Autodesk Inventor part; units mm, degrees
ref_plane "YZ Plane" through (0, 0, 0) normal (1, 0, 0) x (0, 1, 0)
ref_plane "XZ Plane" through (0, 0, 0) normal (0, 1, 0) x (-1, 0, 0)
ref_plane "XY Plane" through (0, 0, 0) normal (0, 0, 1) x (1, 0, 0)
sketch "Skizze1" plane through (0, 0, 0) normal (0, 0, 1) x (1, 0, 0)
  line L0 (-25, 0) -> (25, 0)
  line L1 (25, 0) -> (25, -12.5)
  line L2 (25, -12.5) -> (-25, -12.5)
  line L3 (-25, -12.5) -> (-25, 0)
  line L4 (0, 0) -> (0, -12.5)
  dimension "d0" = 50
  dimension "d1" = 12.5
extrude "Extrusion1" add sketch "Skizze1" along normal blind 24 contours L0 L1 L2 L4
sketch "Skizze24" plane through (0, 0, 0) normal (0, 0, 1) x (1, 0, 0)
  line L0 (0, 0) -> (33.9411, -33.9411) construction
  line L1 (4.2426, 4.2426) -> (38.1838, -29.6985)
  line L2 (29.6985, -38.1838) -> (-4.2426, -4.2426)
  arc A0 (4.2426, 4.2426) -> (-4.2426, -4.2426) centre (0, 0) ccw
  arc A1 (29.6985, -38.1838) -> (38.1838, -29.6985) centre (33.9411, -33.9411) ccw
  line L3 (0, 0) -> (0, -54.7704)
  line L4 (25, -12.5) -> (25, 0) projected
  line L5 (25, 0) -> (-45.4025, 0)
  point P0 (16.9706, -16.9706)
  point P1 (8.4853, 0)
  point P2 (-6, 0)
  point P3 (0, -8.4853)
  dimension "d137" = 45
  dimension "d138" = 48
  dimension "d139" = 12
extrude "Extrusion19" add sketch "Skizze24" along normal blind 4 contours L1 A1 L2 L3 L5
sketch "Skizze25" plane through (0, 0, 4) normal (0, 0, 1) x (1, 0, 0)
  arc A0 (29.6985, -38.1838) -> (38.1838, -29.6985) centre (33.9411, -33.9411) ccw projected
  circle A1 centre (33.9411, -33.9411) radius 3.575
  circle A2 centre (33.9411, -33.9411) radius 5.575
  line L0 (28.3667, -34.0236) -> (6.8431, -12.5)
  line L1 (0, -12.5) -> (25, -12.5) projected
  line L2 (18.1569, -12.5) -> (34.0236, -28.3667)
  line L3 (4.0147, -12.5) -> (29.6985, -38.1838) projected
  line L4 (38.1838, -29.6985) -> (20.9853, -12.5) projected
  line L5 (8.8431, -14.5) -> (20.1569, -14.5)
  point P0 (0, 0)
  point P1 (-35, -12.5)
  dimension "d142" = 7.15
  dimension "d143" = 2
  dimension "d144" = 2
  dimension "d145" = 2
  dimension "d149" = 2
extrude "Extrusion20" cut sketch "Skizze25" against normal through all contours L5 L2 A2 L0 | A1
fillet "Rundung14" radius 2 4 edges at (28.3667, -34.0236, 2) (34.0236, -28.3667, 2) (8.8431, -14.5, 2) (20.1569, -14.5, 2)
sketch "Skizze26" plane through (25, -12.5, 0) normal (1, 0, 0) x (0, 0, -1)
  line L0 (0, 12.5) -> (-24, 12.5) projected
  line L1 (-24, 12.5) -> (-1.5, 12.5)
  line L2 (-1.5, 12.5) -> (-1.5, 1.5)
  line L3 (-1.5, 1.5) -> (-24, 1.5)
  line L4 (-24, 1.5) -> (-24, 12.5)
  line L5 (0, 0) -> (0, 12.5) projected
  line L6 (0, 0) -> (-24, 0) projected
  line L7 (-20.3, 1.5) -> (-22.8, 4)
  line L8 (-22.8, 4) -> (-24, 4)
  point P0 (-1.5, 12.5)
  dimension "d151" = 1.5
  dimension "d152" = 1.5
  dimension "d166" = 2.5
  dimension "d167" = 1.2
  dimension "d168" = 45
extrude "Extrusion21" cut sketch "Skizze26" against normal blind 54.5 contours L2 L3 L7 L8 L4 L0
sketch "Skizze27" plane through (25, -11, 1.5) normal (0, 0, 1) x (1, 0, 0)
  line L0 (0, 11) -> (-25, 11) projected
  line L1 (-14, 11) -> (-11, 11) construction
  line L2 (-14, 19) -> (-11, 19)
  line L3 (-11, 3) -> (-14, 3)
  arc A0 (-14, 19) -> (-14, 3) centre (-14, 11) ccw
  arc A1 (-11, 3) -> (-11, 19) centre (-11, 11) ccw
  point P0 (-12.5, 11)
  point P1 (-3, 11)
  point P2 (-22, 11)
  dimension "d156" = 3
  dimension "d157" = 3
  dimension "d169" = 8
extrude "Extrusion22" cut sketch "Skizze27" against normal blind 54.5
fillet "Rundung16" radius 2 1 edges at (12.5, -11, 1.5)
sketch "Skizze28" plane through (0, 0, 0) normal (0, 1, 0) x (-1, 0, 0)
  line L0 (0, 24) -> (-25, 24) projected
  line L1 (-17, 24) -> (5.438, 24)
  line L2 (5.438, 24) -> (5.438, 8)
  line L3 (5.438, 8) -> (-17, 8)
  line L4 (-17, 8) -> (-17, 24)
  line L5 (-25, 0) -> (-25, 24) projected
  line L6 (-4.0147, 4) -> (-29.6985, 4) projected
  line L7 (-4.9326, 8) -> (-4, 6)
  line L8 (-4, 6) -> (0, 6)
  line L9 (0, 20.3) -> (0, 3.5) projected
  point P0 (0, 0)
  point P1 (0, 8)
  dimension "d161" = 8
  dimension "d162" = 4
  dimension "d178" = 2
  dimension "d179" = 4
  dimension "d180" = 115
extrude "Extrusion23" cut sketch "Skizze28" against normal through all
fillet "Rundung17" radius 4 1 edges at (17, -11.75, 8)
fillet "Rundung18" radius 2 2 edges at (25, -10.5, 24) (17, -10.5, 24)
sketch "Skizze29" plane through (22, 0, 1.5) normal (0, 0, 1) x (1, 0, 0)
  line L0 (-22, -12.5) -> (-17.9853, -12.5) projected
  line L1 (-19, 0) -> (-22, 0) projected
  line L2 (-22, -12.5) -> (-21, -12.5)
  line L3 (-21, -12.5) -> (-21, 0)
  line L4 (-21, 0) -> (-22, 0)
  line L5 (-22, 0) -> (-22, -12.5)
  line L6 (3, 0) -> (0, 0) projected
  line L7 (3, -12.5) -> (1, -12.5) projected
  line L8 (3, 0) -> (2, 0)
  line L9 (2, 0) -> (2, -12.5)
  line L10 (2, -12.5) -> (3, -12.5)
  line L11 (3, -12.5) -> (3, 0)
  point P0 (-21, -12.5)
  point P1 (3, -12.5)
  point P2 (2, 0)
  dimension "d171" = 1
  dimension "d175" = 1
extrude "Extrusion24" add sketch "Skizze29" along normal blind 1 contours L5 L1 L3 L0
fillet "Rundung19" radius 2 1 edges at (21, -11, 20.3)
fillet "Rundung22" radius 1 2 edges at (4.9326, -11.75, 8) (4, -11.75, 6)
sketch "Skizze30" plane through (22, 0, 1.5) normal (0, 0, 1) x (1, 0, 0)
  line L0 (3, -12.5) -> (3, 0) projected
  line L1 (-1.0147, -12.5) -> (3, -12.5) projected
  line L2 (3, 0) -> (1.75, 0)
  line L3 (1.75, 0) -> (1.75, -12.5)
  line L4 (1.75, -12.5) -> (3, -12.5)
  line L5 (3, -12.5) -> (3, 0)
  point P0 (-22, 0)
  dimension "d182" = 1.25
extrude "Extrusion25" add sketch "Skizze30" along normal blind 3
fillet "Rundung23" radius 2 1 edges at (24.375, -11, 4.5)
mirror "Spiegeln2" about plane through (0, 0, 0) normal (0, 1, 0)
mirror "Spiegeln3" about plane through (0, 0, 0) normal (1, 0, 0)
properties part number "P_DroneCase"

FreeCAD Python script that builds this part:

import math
import FreeCAD as App
import Part
import Sketcher
Q = App.Units.Quantity


def edges_at(feature, points):
    """Names of the edges that pass closest to the given points."""
    edges = feature.Shape.Edges
    near = lambda p: min(range(len(edges)), key=lambda i: edges[i].distToShape(Part.Vertex(*p))[0])
    return sorted({f"Edge{near(p) + 1}" for p in points})

doc = App.newDocument("Part")
body = doc.addObject("PartDesign::Body", "Body")

# Sketch on XY plane
sketch1 = body.newObject("Sketcher::SketchObject", "Sketch")
sketch1.AttachmentSupport = (doc.getObject("XY_Plane"), [""])
sketch1.MapMode = "FlatFace"
sketch1.addGeometry(Part.LineSegment(App.Vector(25, 0, 0), App.Vector(0, 0, 0)), False)
sketch1.addGeometry(Part.LineSegment(App.Vector(0, 0, 0), App.Vector(0, -12, 0)), False)
sketch1.addGeometry(Part.LineSegment(App.Vector(0, -12, 0), App.Vector(25, -12, 0)), False)
sketch1.addGeometry(Part.LineSegment(App.Vector(25, -12, 0), App.Vector(25, 0, 0)), False)
sketch1.addConstraint(Sketcher.Constraint("Coincident", 0, 2, 1, 1))
sketch1.addConstraint(Sketcher.Constraint("Coincident", 1, 2, 2, 1))
sketch1.addConstraint(Sketcher.Constraint("Coincident", 2, 2, 3, 1))
sketch1.addConstraint(Sketcher.Constraint("Coincident", 3, 2, 0, 1))
sketch1.addConstraint(Sketcher.Constraint("Horizontal", 0))
sketch1.addConstraint(Sketcher.Constraint("Vertical", 1))
sketch1.addConstraint(Sketcher.Constraint("Horizontal", 2))
sketch1.addConstraint(Sketcher.Constraint("Vertical", 3))
sketch1.addConstraint(Sketcher.Constraint("Coincident", 0, 2, -1, 1))
sketch1.addConstraint(Sketcher.Constraint("DistanceY", 1, 2, 1, 1, Q("12.5 mm")))
sketch1.addConstraint(Sketcher.Constraint("DistanceX", 0, 2, 0, 1, Q("25 mm")))
pad1 = body.newObject("PartDesign::Pad", "Pad")
pad1.Profile = sketch1
pad1.Length = 24

# Sketch on XY plane
sketch2 = body.newObject("Sketcher::SketchObject", "Sketch001")
sketch2.AttachmentSupport = (doc.getObject("XY_Plane"), [""])
sketch2.MapMode = "FlatFace"
sketch2.addGeometry(Part.LineSegment(App.Vector(38, -30, 0), App.Vector(8, 0, 0)), False)
sketch2.addGeometry(Part.LineSegment(App.Vector(8, 0, 0), App.Vector(0, 0, 0)), False)
sketch2.addGeometry(Part.LineSegment(App.Vector(0, 0, 0), App.Vector(0, -8, 0)), False)
sketch2.addGeometry(Part.LineSegment(App.Vector(0, -8, 0), App.Vector(30, -38, 0)), False)
sketch2.addGeometry(Part.ArcOfCircle(Part.Circle(App.Vector(34, -34, 0), App.Vector(0, 0, 1), 6), math.radians(-135), math.radians(45)), False)
sketch2.addConstraint(Sketcher.Constraint("Coincident", 0, 2, 1, 1))
sketch2.addConstraint(Sketcher.Constraint("Coincident", 1, 2, 2, 1))
sketch2.addConstraint(Sketcher.Constraint("Coincident", 2, 2, 3, 1))
sketch2.addConstraint(Sketcher.Constraint("Tangent", 3, 2, 4, 1))
sketch2.addConstraint(Sketcher.Constraint("Tangent", 4, 2, 0, 1))
sketch2.addConstraint(Sketcher.Constraint("Horizontal", 1))
sketch2.addConstraint(Sketcher.Constraint("Vertical", 2))
sketch2.addConstraint(Sketcher.Constraint("Coincident", 1, 2, -1, 1))
sketch2.addConstraint(Sketcher.Constraint("Parallel", 0, 3))
sketch2.addConstraint(Sketcher.Constraint("Equal", 1, 2))
sketch2.addConstraint(Sketcher.Constraint("Equal", 0, 3))
sketch2.addConstraint(Sketcher.Constraint("Radius", 4, Q("6 mm")))
sketch2.addConstraint(Sketcher.Constraint("Distance", 0, Q("42 mm")))
pad2 = body.newObject("PartDesign::Pad", "Pad001")
pad2.Profile = sketch2
pad2.Length = 4

# Sketch on XY plane
sketch3 = body.newObject("Sketcher::SketchObject", "Sketch002")
sketch3.AttachmentSupport = (doc.getObject("XY_Plane"), [""])
sketch3.MapMode = "FlatFace"
sketch3.AttachmentOffset = App.Placement(App.Vector(0, 0, 4), App.Rotation())
sketch3.addGeometry(Part.LineSegment(App.Vector(20.2, -14.5, 0), App.Vector(8.8, -14.5, 0)), False)
sketch3.addGeometry(Part.LineSegment(App.Vector(8.8, -14.5, 0), App.Vector(28.4, -34, 0)), False)
sketch3.addGeometry(Part.ArcOfCircle(Part.Circle(App.Vector(33.9, -33.9, 0), App.Vector(0, 0, 1), 5.6), math.radians(89), math.radians(181)), False)
sketch3.addGeometry(Part.LineSegment(App.Vector(34, -28.4, 0), App.Vector(20.2, -14.5, 0)), False)
sketch3.addGeometry(Part.Circle(App.Vector(33.9, -33.9, 0), App.Vector(0, 0, 1), 3.6), False)
sketch3.addConstraint(Sketcher.Constraint("Coincident", 0, 2, 1, 1))
sketch3.addConstraint(Sketcher.Constraint("Coincident", 1, 2, 2, 2))
sketch3.addConstraint(Sketcher.Constraint("Coincident", 2, 1, 3, 1))
sketch3.addConstraint(Sketcher.Constraint("Coincident", 3, 2, 0, 1))
sketch3.addConstraint(Sketcher.Constraint("Horizontal", 0))
sketch3.addConstraint(Sketcher.Constraint("Coincident", 4, 3, 2, 3))
sketch3.addConstraint(Sketcher.Constraint("Parallel", 1, 3))
sketch3.addConstraint(Sketcher.Constraint("Diameter", 4, Q("7.15 mm")))
sketch3.addConstraint(Sketcher.Constraint("Angle", 1, Q("-45 deg")))
sketch3.addConstraint(Sketcher.Constraint("Radius", 2, Q("5.575 mm")))
sketch3.addConstraint(Sketcher.Constraint("DistanceY", 0, 2, -1, 1, Q("14.5 mm")))
sketch3.addConstraint(Sketcher.Constraint("DistanceX", 0, 2, 0, 1, Q("11.3138 mm")))
sketch3.addConstraint(Sketcher.Constraint("DistanceX", -1, 1, 2, 3, Q("33.941 mm")))
sketch3.addConstraint(Sketcher.Constraint("DistanceY", 2, 3, -1, 1, Q("33.941 mm")))
sketch3.addConstraint(Sketcher.Constraint("DistanceX", -1, 1, 0, 2, Q("8.843 mm")))
pocket1 = body.newObject("PartDesign::Pocket", "Pocket")
pocket1.Profile = sketch3
pocket1.Type = "ThroughAll"
doc.recompute()

fillet = body.newObject("PartDesign::Fillet", "Fillet")
fillet.Base = (pocket1, edges_at(pocket1, [
    (28.367, -34.024, 2),
    (34.024, -28.367, 2),
    (8.843, -14.5, 2),
    (20.157, -14.5, 2),
]))
fillet.Radius = 2

# Sketch on YZ plane
sketch4 = body.newObject("Sketcher::SketchObject", "Sketch003")
sketch4.AttachmentSupport = (doc.getObject("YZ_Plane"), [""])
sketch4.MapMode = "FlatFace"
sketch4.AttachmentOffset = App.Placement(App.Vector(0, 0, 25), App.Rotation())
sketch4.addGeometry(Part.LineSegment(App.Vector(-11, 1.5, 0), App.Vector(0, 1.5, 0)), False)
sketch4.addGeometry(Part.LineSegment(App.Vector(0, 1.5, 0), App.Vector(0, 24, 0)), False)
sketch4.addGeometry(Part.LineSegment(App.Vector(0, 24, 0), App.Vector(-8.5, 24, 0)), False)
sketch4.addGeometry(Part.LineSegment(App.Vector(-8.5, 24, 0), App.Vector(-8.5, 22.8, 0)), False)
sketch4.addGeometry(Part.LineSegment(App.Vector(-8.5, 22.8, 0), App.Vector(-11, 20.3, 0)), False)
sketch4.addGeometry(Part.LineSegment(App.Vector(-11, 20.3, 0), App.Vector(-11, 1.5, 0)), False)
sketch4.addConstraint(Sketcher.Constraint("Coincident", 0, 2, 1, 1))
sketch4.addConstraint(Sketcher.Constraint("Coincident", 1, 2, 2, 1))
sketch4.addConstraint(Sketcher.Constraint("Coincident", 2, 2, 3, 1))
sketch4.addConstraint(Sketcher.Constraint("Coincident", 3, 2, 4, 1))
sketch4.addConstraint(Sketcher.Constraint("Coincident", 4, 2, 5, 1))
sketch4.addConstraint(Sketcher.Constraint("Coincident", 5, 2, 0, 1))
sketch4.addConstraint(Sketcher.Constraint("Horizontal", 0))
sketch4.addConstraint(Sketcher.Constraint("Vertical", 1))
sketch4.addConstraint(Sketcher.Constraint("Horizontal", 2))
sketch4.addConstraint(Sketcher.Constraint("Vertical", 3))
sketch4.addConstraint(Sketcher.Constraint("Vertical", 5))
sketch4.addConstraint(Sketcher.Constraint("PointOnObject", 0, 2, -2))
sketch4.addConstraint(Sketcher.Constraint("DistanceY", 3, 2, 3, 1, Q("1.2 mm")))
sketch4.addConstraint(Sketcher.Constraint("DistanceY", -1, 1, 0, 2, Q("1.5 mm")))
sketch4.addConstraint(Sketcher.Constraint("DistanceX", 4, 2, 3, 2, Q("2.5 mm")))
sketch4.addConstraint(Sketcher.Constraint("DistanceY", 4, 2, 3, 2, Q("2.5 mm")))
sketch4.addConstraint(Sketcher.Constraint("DistanceX", 0, 1, 0, 2, Q("11 mm")))
sketch4.addConstraint(Sketcher.Constraint("DistanceY", 1, 1, 1, 2, Q("22.5 mm")))
pocket2 = body.newObject("PartDesign::Pocket", "Pocket001")
pocket2.Profile = sketch4
pocket2.Length = 54.5

# Sketch on XY plane
sketch5 = body.newObject("Sketcher::SketchObject", "Sketch004")
sketch5.AttachmentSupport = (doc.getObject("XY_Plane"), [""])
sketch5.MapMode = "FlatFace"
sketch5.AttachmentOffset = App.Placement(App.Vector(0, 0, 1.5), App.Rotation())
sketch5.addGeometry(Part.ArcOfCircle(Part.Circle(App.Vector(14, 0, 0), App.Vector(0, 0, 1), 8), math.radians(-90), math.radians(90)), False)
sketch5.addGeometry(Part.LineSegment(App.Vector(14, 8, 0), App.Vector(11, 8, 0)), False)
sketch5.addGeometry(Part.ArcOfCircle(Part.Circle(App.Vector(11, 0, 0), App.Vector(0, 0, 1), 8), math.radians(90), math.radians(270)), False)
sketch5.addGeometry(Part.LineSegment(App.Vector(11, -8, 0), App.Vector(14, -8, 0)), False)
sketch5.addConstraint(Sketcher.Constraint("Tangent", 0, 2, 1, 1))
sketch5.addConstraint(Sketcher.Constraint("Tangent", 1, 2, 2, 1))
sketch5.addConstraint(Sketcher.Constraint("Tangent", 2, 2, 3, 1))
sketch5.addConstraint(Sketcher.Constraint("Tangent", 3, 2, 0, 1))
sketch5.addConstraint(Sketcher.Constraint("Horizontal", 1))
sketch5.addConstraint(Sketcher.Constraint("Horizontal", 3))
sketch5.addConstraint(Sketcher.Constraint("PointOnObject", 0, 3, -1))
sketch5.addConstraint(Sketcher.Constraint("Radius", 0, Q("8 mm")))
sketch5.addConstraint(Sketcher.Constraint("DistanceX", 1, 2, 1, 1, Q("3 mm")))
sketch5.addConstraint(Sketcher.Constraint("DistanceX", -1, 1, 0, 3, Q("14 mm")))
pocket3 = body.newObject("PartDesign::Pocket", "Pocket002")
pocket3.Profile = sketch5
pocket3.Length = 54.5
doc.recompute()

fillet2 = body.newObject("PartDesign::Fillet", "Fillet001")
fillet2.Base = (pocket3, edges_at(pocket3, [(12.5, -11, 1.5)]))
fillet2.Radius = 2

# Sketch on XZ plane
sketch6 = body.newObject("Sketcher::SketchObject", "Sketch005")
sketch6.AttachmentSupport = (doc.getObject("XZ_Plane"), [""])
sketch6.MapMode = "FlatFace"
sketch6.addGeometry(Part.LineSegment(App.Vector(-5.4, 24, 0), App.Vector(17, 24, 0)), False)
sketch6.addGeometry(Part.LineSegment(App.Vector(17, 24, 0), App.Vector(17, 8, 0)), False)
sketch6.addGeometry(Part.LineSegment(App.Vector(17, 8, 0), App.Vector(4.9, 8, 0)), False)
sketch6.addGeometry(Part.LineSegment(App.Vector(4.9, 8, 0), App.Vector(4, 6, 0)), False)
sketch6.addGeometry(Part.LineSegment(App.Vector(4, 6, 0), App.Vector(0, 6, 0)), False)
sketch6.addGeometry(Part.LineSegment(App.Vector(0, 6, 0), App.Vector(0, 8, 0)), False)
sketch6.addGeometry(Part.LineSegment(App.Vector(0, 8, 0), App.Vector(-5.4, 8, 0)), False)
sketch6.addGeometry(Part.LineSegment(App.Vector(-5.4, 8, 0), App.Vector(-5.4, 24, 0)), False)
sketch6.addConstraint(Sketcher.Constraint("Coincident", 0, 2, 1, 1))
sketch6.addConstraint(Sketcher.Constraint("Coincident", 1, 2, 2, 1))
sketch6.addConstraint(Sketcher.Constraint("Coincident", 2, 2, 3, 1))
sketch6.addConstraint(Sketcher.Constraint("Coincident", 3, 2, 4, 1))
sketch6.addConstraint(Sketcher.Constraint("Coincident", 4, 2, 5, 1))
sketch6.addConstraint(Sketcher.Constraint("Coincident", 5, 2, 6, 1))
sketch6.addConstraint(Sketcher.Constraint("Coincident", 6, 2, 7, 1))
sketch6.addConstraint(Sketcher.Constraint("Coincident", 7, 2, 0, 1))
sketch6.addConstraint(Sketcher.Constraint("Horizontal", 0))
sketch6.addConstraint(Sketcher.Constraint("Vertical", 1))
sketch6.addConstraint(Sketcher.Constraint("Horizontal", 2))
sketch6.addConstraint(Sketcher.Constraint("Horizontal", 4))
sketch6.addConstraint(Sketcher.Constraint("Vertical", 5))
sketch6.addConstraint(Sketcher.Constraint("Horizontal", 6))
sketch6.addConstraint(Sketcher.Constraint("Vertical", 7))
sketch6.addConstraint(Sketcher.Constraint("PointOnObject", 4, 2, -2))
sketch6.addConstraint(Sketcher.Constraint("Horizontal", 2, 2, 5, 2))
sketch6.addConstraint(Sketcher.Constraint("DistanceX", 4, 2, 4, 1, Q("4 mm")))
sketch6.addConstraint(Sketcher.Constraint("DistanceY", 5, 1, 5, 2, Q("2 mm")))
sketch6.addConstraint(Sketcher.Constraint("Angle", 3, Q("-114.9996 deg")))
sketch6.addConstraint(Sketcher.Constraint("DistanceY", -1, 1, 1, 2, Q("8 mm")))
sketch6.addConstraint(Sketcher.Constraint("DistanceY", 1, 2, 1, 1, Q("16 mm")))
sketch6.addConstraint(Sketcher.Constraint("DistanceX", -1, 1, 0, 2, Q("17 mm")))
sketch6.addConstraint(Sketcher.Constraint("DistanceX", 0, 1, 0, 2, Q("22.438 mm")))
pocket4 = body.newObject("PartDesign::Pocket", "Pocket003")
pocket4.Profile = sketch6
pocket4.Type = "ThroughAll"
pocket4.Reversed = True
doc.recompute()

fillet3 = body.newObject("PartDesign::Fillet", "Fillet002")
fillet3.Base = (pocket4, edges_at(pocket4, [(17, -11.75, 8)]))
fillet3.Radius = 4
doc.recompute()

fillet4 = body.newObject("PartDesign::Fillet", "Fillet003")
fillet4.Base = (fillet3, edges_at(fillet3, [(25, -10.5, 24), (17, -10.5, 24)]))
fillet4.Radius = 2

# Sketch on XY plane
sketch7 = body.newObject("Sketcher::SketchObject", "Sketch006")
sketch7.AttachmentSupport = (doc.getObject("XY_Plane"), [""])
sketch7.MapMode = "FlatFace"
sketch7.AttachmentOffset = App.Placement(App.Vector(0, 0, 1.5), App.Rotation())
sketch7.addGeometry(Part.LineSegment(App.Vector(0, 0, 0), App.Vector(0, -12.5, 0)), False)
sketch7.addGeometry(Part.LineSegment(App.Vector(0, -12.5, 0), App.Vector(1, -12.5, 0)), False)
sketch7.addGeometry(Part.LineSegment(App.Vector(1, -12.5, 0), App.Vector(1, 0, 0)), False)
sketch7.addGeometry(Part.LineSegment(App.Vector(1, 0, 0), App.Vector(0, 0, 0)), False)
sketch7.addConstraint(Sketcher.Constraint("Coincident", 0, 2, 1, 1))
sketch7.addConstraint(Sketcher.Constraint("Coincident", 1, 2, 2, 1))
sketch7.addConstraint(Sketcher.Constraint("Coincident", 2, 2, 3, 1))
sketch7.addConstraint(Sketcher.Constraint("Coincident", 3, 2, 0, 1))
sketch7.addConstraint(Sketcher.Constraint("Vertical", 0))
sketch7.addConstraint(Sketcher.Constraint("Horizontal", 1))
sketch7.addConstraint(Sketcher.Constraint("Vertical", 2))
sketch7.addConstraint(Sketcher.Constraint("Horizontal", 3))
sketch7.addConstraint(Sketcher.Constraint("Coincident", 3, 2, -1, 1))
sketch7.addConstraint(Sketcher.Constraint("DistanceX", 1, 1, 1, 2, Q("1 mm")))
sketch7.addConstraint(Sketcher.Constraint("DistanceY", 0, 2, 0, 1, Q("12.5 mm")))
pad3 = body.newObject("PartDesign::Pad", "Pad002")
pad3.Profile = sketch7
pad3.Length = 1
doc.recompute()

fillet5 = body.newObject("PartDesign::Fillet", "Fillet004")
fillet5.Base = (pad3, edges_at(pad3, [(21, -11, 20.3)]))
fillet5.Radius = 2
doc.recompute()

fillet6 = body.newObject("PartDesign::Fillet", "Fillet005")
fillet6.Base = (fillet5, edges_at(fillet5, [(4.933, -11.75, 8), (4, -11.75, 6)]))
fillet6.Radius = 1

# Sketch on XY plane
sketch8 = body.newObject("Sketcher::SketchObject", "Sketch007")
sketch8.AttachmentSupport = (doc.getObject("XY_Plane"), [""])
sketch8.MapMode = "FlatFace"
sketch8.AttachmentOffset = App.Placement(App.Vector(0, 0, 1.5), App.Rotation())
sketch8.addGeometry(Part.LineSegment(App.Vector(23.8, -12.5, 0), App.Vector(25, -12.5, 0)), False)
sketch8.addGeometry(Part.LineSegment(App.Vector(25, -12.5, 0), App.Vector(25, 0, 0)), False)
sketch8.addGeometry(Part.LineSegment(App.Vector(25, 0, 0), App.Vector(23.8, 0, 0)), False)
sketch8.addGeometry(Part.LineSegment(App.Vector(23.8, 0, 0), App.Vector(23.8, -12.5, 0)), False)
sketch8.addConstraint(Sketcher.Constraint("Coincident", 0, 2, 1, 1))
sketch8.addConstraint(Sketcher.Constraint("Coincident", 1, 2, 2, 1))
sketch8.addConstraint(Sketcher.Constraint("Coincident", 2, 2, 3, 1))
sketch8.addConstraint(Sketcher.Constraint("Coincident", 3, 2, 0, 1))
sketch8.addConstraint(Sketcher.Constraint("Horizontal", 0))
sketch8.addConstraint(Sketcher.Constraint("Vertical", 1))
sketch8.addConstraint(Sketcher.Constraint("Horizontal", 2))
sketch8.addConstraint(Sketcher.Constraint("Vertical", 3))
sketch8.addConstraint(Sketcher.Constraint("PointOnObject", 1, 2, -1))
sketch8.addConstraint(Sketcher.Constraint("DistanceX", 0, 1, 0, 2, Q("1.25 mm")))
sketch8.addConstraint(Sketcher.Constraint("DistanceY", 1, 1, 1, 2, Q("12.5 mm")))
sketch8.addConstraint(Sketcher.Constraint("DistanceX", -1, 1, 0, 2, Q("25 mm")))
pad4 = body.newObject("PartDesign::Pad", "Pad003")
pad4.Profile = sketch8
pad4.Length = 3
doc.recompute()

fillet7 = body.newObject("PartDesign::Fillet", "Fillet006")
fillet7.Base = (pad4, edges_at(pad4, [(24.375, -11, 4.5)]))
fillet7.Radius = 2
doc.recompute()

mirrored = body.newObject("PartDesign::Mirrored", "Mirrored")
mirrored.TransformMode = "Transform body"
mirrored.MirrorPlane = (doc.getObject("XZ_Plane"), [""])
body.Tip = mirrored
doc.recompute()

mirrored2 = body.newObject("PartDesign::Mirrored", "Mirrored001")
mirrored2.TransformMode = "Transform body"
mirrored2.MirrorPlane = (doc.getObject("YZ_Plane"), [""])
body.Tip = mirrored2

doc.recompute()
